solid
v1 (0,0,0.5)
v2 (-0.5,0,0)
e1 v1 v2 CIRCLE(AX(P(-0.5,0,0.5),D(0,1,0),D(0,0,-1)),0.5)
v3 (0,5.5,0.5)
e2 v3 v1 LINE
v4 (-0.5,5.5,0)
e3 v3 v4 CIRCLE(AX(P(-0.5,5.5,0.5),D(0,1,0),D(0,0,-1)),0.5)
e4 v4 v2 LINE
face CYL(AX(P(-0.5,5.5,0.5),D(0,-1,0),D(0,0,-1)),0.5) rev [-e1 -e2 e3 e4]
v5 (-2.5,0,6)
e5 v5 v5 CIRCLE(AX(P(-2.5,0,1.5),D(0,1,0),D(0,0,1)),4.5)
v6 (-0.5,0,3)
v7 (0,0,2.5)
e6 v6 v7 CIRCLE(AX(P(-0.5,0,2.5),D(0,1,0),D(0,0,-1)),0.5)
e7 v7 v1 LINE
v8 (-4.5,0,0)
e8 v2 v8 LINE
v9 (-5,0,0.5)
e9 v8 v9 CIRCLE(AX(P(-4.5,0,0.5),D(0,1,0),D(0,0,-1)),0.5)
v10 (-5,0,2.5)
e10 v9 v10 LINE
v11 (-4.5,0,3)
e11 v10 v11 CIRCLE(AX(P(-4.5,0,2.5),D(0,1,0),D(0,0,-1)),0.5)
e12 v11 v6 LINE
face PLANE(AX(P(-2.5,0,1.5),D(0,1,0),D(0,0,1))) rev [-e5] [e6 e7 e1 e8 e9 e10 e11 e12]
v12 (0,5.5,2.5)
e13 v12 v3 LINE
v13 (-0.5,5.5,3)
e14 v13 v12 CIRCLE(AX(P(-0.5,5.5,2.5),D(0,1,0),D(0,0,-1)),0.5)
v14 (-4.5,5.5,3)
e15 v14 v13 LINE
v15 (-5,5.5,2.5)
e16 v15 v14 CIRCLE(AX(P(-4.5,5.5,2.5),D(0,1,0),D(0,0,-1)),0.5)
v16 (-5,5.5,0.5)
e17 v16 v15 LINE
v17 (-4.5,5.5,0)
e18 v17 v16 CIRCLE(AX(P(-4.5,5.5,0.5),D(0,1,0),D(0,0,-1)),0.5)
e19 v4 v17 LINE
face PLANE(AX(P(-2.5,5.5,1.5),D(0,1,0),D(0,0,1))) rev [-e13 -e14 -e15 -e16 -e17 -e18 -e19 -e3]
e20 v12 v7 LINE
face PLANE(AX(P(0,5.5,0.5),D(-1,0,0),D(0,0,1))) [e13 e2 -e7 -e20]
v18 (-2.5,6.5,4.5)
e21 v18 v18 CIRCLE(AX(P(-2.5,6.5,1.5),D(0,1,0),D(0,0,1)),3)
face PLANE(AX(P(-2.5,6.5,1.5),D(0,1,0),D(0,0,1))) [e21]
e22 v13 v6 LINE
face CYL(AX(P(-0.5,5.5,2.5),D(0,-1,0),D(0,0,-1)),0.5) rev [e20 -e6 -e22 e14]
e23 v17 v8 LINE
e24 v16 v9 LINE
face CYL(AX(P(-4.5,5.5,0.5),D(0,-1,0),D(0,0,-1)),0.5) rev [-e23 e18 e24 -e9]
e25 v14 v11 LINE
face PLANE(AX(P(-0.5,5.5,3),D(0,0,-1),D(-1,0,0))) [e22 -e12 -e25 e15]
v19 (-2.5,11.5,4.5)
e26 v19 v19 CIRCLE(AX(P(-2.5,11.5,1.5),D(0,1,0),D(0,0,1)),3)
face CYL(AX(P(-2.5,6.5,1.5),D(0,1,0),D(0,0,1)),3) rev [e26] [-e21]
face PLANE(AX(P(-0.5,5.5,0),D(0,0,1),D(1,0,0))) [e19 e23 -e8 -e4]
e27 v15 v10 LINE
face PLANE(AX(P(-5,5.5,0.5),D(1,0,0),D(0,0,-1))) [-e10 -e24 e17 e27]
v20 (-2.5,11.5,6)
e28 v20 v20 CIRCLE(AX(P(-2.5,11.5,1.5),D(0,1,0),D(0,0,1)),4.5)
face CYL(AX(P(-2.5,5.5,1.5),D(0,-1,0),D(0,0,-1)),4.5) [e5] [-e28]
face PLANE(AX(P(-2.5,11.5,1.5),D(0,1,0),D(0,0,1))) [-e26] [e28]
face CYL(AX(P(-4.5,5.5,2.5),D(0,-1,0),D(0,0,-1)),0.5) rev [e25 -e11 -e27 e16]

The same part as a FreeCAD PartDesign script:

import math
import FreeCAD as App
import Part
import Sketcher
from FreeCAD import Vector

doc = App.newDocument("Part")
params = doc.addObject("Spreadsheet::Sheet", "Params")
for row, (alias, value) in enumerate([
    ("sketch1_diameter", "9 mm"),
    ("sketch1_radius", "0.5 mm"),
    ("sketch1_width", "4 mm"),
    ("sketch1_height", "2 mm"),
    ("pad1_length", "5.5 mm"),
    ("sketch2_diameter", "9 mm"),
    ("pad2_length", "6 mm"),
    ("sketch3_diameter", "6 mm"),
    ("pocket1_length", "5 mm"),
], start=1):
    params.set(f"A{row}", alias)
    params.set(f"B{row}", "=" + value)
    params.setAlias(f"B{row}", alias)

body = doc.addObject("PartDesign::Body", "Body")

sketch1 = doc.addObject("Sketcher::SketchObject", "Sketch")
body.addObject(sketch1)
sketch1.AttachmentSupport = (doc.XZ_Plane, [""])
sketch1.MapMode = "FlatFace"
sketch1.addGeometry(Part.Circle(Vector(-2.5, 1.5, 0), Vector(0, 0, 1), 4.5), False)
sketch1.addGeometry(Part.LineSegment(Vector(-4.5, 0, 0), Vector(-0.5, 0, 0)), False)
sketch1.addGeometry(Part.ArcOfCircle(Part.Circle(Vector(-0.5, 0.5, 0), Vector(0, 0, 1), 0.5), math.radians(-90), math.radians(0)), False)
sketch1.addGeometry(Part.LineSegment(Vector(0, 0.5, 0), Vector(0, 2.5, 0)), False)
sketch1.addGeometry(Part.ArcOfCircle(Part.Circle(Vector(-0.5, 2.5, 0), Vector(0, 0, 1), 0.5), math.radians(0), math.radians(90)), False)
sketch1.addGeometry(Part.LineSegment(Vector(-0.5, 3, 0), Vector(-4.5, 3, 0)), False)
sketch1.addGeometry(Part.ArcOfCircle(Part.Circle(Vector(-4.5, 2.5, 0), Vector(0, 0, 1), 0.5), math.radians(90), math.radians(180)), False)
sketch1.addGeometry(Part.LineSegment(Vector(-5, 2.5, 0), Vector(-5, 0.5, 0)), False)
sketch1.addGeometry(Part.ArcOfCircle(Part.Circle(Vector(-4.5, 0.5, 0), Vector(0, 0, 1), 0.5), math.radians(180), math.radians(270)), False)
sketch1.addConstraint(Sketcher.Constraint("Tangent", 1, 2, 2, 1))
sketch1.addConstraint(Sketcher.Constraint("Tangent", 2, 2, 3, 1))
sketch1.addConstraint(Sketcher.Constraint("Tangent", 3, 2, 4, 1))
sketch1.addConstraint(Sketcher.Constraint("Tangent", 4, 2, 5, 1))
sketch1.addConstraint(Sketcher.Constraint("Tangent", 5, 2, 6, 1))
sketch1.addConstraint(Sketcher.Constraint("Tangent", 6, 2, 7, 1))
sketch1.addConstraint(Sketcher.Constraint("Tangent", 7, 2, 8, 1))
sketch1.addConstraint(Sketcher.Constraint("Tangent", 8, 2, 1, 1))
sketch1.addConstraint(Sketcher.Constraint("Horizontal", 1))
sketch1.addConstraint(Sketcher.Constraint("Vertical", 3))
sketch1.addConstraint(Sketcher.Constraint("Horizontal", 5))
sketch1.addConstraint(Sketcher.Constraint("Vertical", 7))
sketch1.addConstraint(Sketcher.Constraint("Equal", 2, 4))
sketch1.addConstraint(Sketcher.Constraint("Equal", 4, 6))
sketch1.addConstraint(Sketcher.Constraint("Equal", 6, 8))
sketch1.addConstraint(Sketcher.Constraint("PointOnObject", 1, 2, -1))
sketch1.addConstraint(Sketcher.Constraint("PointOnObject", 2, 2, -2))
sketch1.addConstraint(Sketcher.Constraint("Diameter", 0, 9.0))
sketch1.addConstraint(Sketcher.Constraint("Radius", 2, 0.5))
sketch1.addConstraint(Sketcher.Constraint("DistanceX", 1, 1, 1, 2, 4.0))
sketch1.addConstraint(Sketcher.Constraint("DistanceY", 3, 1, 3, 2, 2.0))
sketch1.addConstraint(Sketcher.Constraint("DistanceX", 0, 3, 2, 3, 2.0))
sketch1.addConstraint(Sketcher.Constraint("DistanceY", 2, 3, 0, 3, 1.0))
sketch1.setExpression("Constraints[17]", "Params.sketch1_diameter")
sketch1.setExpression("Constraints[18]", "Params.sketch1_radius")
sketch1.setExpression("Constraints[19]", "Params.sketch1_width")
sketch1.setExpression("Constraints[20]", "Params.sketch1_height")
pad1 = doc.addObject("PartDesign::Pad", "Pad")
body.addObject(pad1)
pad1.Profile = sketch1
pad1.setExpression("Length", "Params.pad1_length")
pad1.Reversed = True

sketch2 = doc.addObject("Sketcher::SketchObject", "Sketch001")
body.addObject(sketch2)
sketch2.AttachmentSupport = (doc.XZ_Plane, [""])
sketch2.MapMode = "FlatFace"
sketch2.AttachmentOffset = App.Placement(Vector(0, 0, -5.5), App.Rotation())
sketch2.addGeometry(Part.Circle(Vector(-2.5, 1.5, 0), Vector(0, 0, 1), 4.5), False)
sketch2.addConstraint(Sketcher.Constraint("Diameter", 0, 9.0))
sketch2.addConstraint(Sketcher.Constraint("DistanceX", 0, 3, -1, 1, 2.5))
sketch2.addConstraint(Sketcher.Constraint("DistanceY", -1, 1, 0, 3, 1.5))
sketch2.setExpression("Constraints[0]", "Params.sketch2_diameter")
pad2 = doc.addObject("PartDesign::Pad", "Pad001")
body.addObject(pad2)
pad2.Profile = sketch2
pad2.setExpression("Length", "Params.pad2_length")
pad2.Reversed = True

sketch3 = doc.addObject("Sketcher::SketchObject", "Sketch002")
body.addObject(sketch3)
sketch3.AttachmentSupport = (doc.XZ_Plane, [""])
sketch3.MapMode = "FlatFace"
sketch3.AttachmentOffset = App.Placement(Vector(0, 0, -11.5), App.Rotation())
sketch3.addGeometry(Part.Circle(Vector(-2.5, 1.5, 0), Vector(0, 0, 1), 3), False)
sketch3.addConstraint(Sketcher.Constraint("Diameter", 0, 6.0))
sketch3.addConstraint(Sketcher.Constraint("DistanceX", 0, 3, -1, 1, 2.5))
sketch3.addConstraint(Sketcher.Constraint("DistanceY", -1, 1, 0, 3, 1.5))
sketch3.setExpression("Constraints[0]", "Params.sketch3_diameter")
pocket1 = doc.addObject("PartDesign::Pocket", "Pocket")
body.addObject(pocket1)
pocket1.Profile = sketch3
pocket1.setExpression("Length", "Params.pocket1_length")
pocket1.Reversed = True

doc.recompute()
